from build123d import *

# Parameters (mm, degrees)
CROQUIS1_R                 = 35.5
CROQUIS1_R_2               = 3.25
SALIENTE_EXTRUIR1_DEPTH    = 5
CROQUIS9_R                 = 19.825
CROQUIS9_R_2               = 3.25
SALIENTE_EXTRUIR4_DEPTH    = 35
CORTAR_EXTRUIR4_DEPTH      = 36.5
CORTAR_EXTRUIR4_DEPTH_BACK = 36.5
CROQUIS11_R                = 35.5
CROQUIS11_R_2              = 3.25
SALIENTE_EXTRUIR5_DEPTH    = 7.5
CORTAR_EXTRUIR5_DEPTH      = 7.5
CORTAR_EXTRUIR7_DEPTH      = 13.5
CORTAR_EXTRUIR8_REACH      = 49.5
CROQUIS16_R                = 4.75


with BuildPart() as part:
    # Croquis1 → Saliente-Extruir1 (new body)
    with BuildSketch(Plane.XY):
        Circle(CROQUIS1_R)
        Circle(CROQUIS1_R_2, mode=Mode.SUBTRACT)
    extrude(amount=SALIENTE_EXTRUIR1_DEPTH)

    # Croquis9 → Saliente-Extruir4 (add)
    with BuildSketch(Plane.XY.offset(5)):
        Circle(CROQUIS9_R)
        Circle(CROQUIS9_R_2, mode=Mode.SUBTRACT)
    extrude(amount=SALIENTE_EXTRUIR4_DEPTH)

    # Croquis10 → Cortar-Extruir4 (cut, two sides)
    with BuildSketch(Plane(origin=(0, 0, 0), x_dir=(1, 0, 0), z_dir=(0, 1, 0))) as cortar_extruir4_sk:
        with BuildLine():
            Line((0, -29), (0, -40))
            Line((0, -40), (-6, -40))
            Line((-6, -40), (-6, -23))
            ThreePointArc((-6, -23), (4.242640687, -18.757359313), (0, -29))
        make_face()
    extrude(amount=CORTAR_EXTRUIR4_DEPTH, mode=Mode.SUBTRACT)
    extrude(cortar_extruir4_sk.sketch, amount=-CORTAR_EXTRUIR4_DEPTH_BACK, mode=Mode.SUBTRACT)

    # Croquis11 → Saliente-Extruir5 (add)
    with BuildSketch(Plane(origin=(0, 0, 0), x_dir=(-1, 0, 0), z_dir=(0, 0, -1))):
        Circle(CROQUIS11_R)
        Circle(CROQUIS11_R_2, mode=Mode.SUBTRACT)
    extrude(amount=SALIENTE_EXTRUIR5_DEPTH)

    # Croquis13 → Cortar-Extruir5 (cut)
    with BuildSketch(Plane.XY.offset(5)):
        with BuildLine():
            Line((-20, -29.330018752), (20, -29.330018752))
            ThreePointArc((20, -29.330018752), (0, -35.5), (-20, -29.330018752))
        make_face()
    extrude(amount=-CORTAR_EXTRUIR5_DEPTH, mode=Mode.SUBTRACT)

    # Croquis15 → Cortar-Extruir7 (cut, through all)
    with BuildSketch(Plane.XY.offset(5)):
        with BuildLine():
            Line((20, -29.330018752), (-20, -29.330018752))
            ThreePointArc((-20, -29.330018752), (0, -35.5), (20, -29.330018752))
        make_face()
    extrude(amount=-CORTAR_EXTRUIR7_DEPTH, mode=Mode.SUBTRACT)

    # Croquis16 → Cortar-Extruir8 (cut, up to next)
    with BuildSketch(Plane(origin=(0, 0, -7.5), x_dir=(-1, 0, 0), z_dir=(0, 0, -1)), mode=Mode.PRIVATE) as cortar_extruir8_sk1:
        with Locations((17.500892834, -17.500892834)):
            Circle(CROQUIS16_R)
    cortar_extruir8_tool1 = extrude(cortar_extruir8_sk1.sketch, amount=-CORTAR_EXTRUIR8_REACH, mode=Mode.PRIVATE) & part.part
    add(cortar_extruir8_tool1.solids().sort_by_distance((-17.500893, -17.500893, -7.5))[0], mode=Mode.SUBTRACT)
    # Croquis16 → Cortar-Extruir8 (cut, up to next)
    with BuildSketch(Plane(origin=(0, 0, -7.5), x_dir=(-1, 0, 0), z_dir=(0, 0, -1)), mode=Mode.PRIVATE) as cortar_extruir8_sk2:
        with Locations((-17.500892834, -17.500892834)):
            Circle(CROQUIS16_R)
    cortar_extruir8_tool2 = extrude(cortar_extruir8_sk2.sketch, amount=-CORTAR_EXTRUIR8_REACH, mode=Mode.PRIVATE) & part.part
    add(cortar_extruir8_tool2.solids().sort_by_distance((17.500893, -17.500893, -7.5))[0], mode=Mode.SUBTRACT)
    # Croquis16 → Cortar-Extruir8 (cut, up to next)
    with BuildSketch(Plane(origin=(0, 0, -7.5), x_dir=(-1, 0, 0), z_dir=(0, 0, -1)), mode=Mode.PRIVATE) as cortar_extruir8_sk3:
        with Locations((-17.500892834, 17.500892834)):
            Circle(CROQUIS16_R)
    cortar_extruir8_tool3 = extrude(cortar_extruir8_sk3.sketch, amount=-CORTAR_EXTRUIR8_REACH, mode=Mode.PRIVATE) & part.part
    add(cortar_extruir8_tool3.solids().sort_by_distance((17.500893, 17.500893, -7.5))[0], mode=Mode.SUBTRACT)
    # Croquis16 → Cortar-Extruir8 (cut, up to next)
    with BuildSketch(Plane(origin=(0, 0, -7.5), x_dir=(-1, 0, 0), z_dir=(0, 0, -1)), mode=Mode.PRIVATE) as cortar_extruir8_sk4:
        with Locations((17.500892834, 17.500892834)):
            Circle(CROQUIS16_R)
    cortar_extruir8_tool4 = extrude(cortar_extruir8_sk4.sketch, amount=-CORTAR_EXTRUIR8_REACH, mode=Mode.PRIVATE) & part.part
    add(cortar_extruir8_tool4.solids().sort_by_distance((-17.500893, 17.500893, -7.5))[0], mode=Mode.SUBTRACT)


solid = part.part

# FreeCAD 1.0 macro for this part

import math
import FreeCAD as App
import Part
import Sketcher

V = App.Vector
Q = App.Units.Quantity

doc = App.newDocument("Part")
body = doc.addObject("PartDesign::Body", "Body")

# Sketch on XY plane
sketch1 = body.newObject("Sketcher::SketchObject", "Sketch")
sketch1.AttachmentSupport = (doc.getObject("XY_Plane"), [""])
sketch1.MapMode = "FlatFace"
sketch1.addGeometry([
    Part.Circle(V(0, 0, 0), V(0, 0, 1), 35.5),
    Part.Circle(V(0, 0, 0), V(0, 0, 1), 3.2),
], False)
sketch1.addConstraint([
    Sketcher.Constraint("Coincident", 0, 3, -1, 1),
    Sketcher.Constraint("Coincident", 1, 3, -1, 1),
    Sketcher.Constraint("Diameter", 0, Q("71 mm")),
    Sketcher.Constraint("Diameter", 1, Q("6.5 mm")),
])
pad1 = body.newObject("PartDesign::Pad", "Pad")
pad1.Profile = sketch1
pad1.Length = 5

# Sketch on XY plane
sketch2 = body.newObject("Sketcher::SketchObject", "Sketch001")
sketch2.AttachmentSupport = (doc.getObject("XY_Plane"), [""])
sketch2.MapMode = "FlatFace"
sketch2.AttachmentOffset = App.Placement(V(0, 0, 5), App.Rotation())
sketch2.addGeometry([
    Part.Circle(V(0, 0, 0), V(0, 0, 1), 19.8),
    Part.Circle(V(0, 0, 0), V(0, 0, 1), 3.2),
], False)
sketch2.addConstraint([
    Sketcher.Constraint("Coincident", 0, 3, -1, 1),
    Sketcher.Constraint("Coincident", 1, 3, -1, 1),
    Sketcher.Constraint("Diameter", 1, Q("6.5 mm")),
    Sketcher.Constraint("Diameter", 0, Q("39.65 mm")),
])
pad2 = body.newObject("PartDesign::Pad", "Pad001")
pad2.Profile = sketch2
pad2.Length = 35

# Sketch on XZ plane
sketch3 = body.newObject("Sketcher::SketchObject", "Sketch002")
sketch3.AttachmentSupport = (doc.getObject("XZ_Plane"), [""])
sketch3.MapMode = "FlatFace"
sketch3.addGeometry([
    Part.LineSegment(V(0, 40, 0), V(0, 29, 0)),
    Part.ArcOfCircle(Part.Circle(V(0, 23, 0), V(0, 0, 1), 6), math.radians(180), math.radians(450)),
    Part.LineSegment(V(-6, 23, 0), V(-6, 40, 0)),
    Part.LineSegment(V(-6, 40, 0), V(0, 40, 0)),
], False)
sketch3.addConstraint([
    Sketcher.Constraint("Coincident", 0, 2, 1, 2),
    Sketcher.Constraint("Tangent", 1, 1, 2, 1),
    Sketcher.Constraint("Coincident", 2, 2, 3, 1),
    Sketcher.Constraint("Coincident", 3, 2, 0, 1),
    Sketcher.Constraint("Vertical", 0),
    Sketcher.Constraint("Vertical", 2),
    Sketcher.Constraint("Horizontal", 3),
    Sketcher.Constraint("PointOnObject", 1, 3, -2),
    Sketcher.Constraint("PointOnObject", 0, 2, -2),
    Sketcher.Constraint("Radius", 1, Q("6 mm")),
    Sketcher.Constraint("DistanceY", 0, 2, 0, 1, Q("11 mm")),
    Sketcher.Constraint("DistanceY", -1, 1, 1, 3, Q("23 mm")),
])
pocket1 = body.newObject("PartDesign::Pocket", "Pocket")
pocket1.Profile = sketch3
pocket1.Type = "ThroughAll"
pocket1.Midplane = True

# Sketch on XY plane
sketch4 = body.newObject("Sketcher::SketchObject", "Sketch003")
sketch4.AttachmentSupport = (doc.getObject("XY_Plane"), [""])
sketch4.MapMode = "FlatFace"
sketch4.addGeometry([
    Part.Circle(V(0, 0, 0), V(0, 0, 1), 35.5),
    Part.Circle(V(0, 0, 0), V(0, 0, 1), 3.2),
], False)
sketch4.addConstraint([
    Sketcher.Constraint("Coincident", 0, 3, -1, 1),
    Sketcher.Constraint("Coincident", 1, 3, -1, 1),
    Sketcher.Constraint("Diameter", 0, Q("71 mm")),
    Sketcher.Constraint("Diameter", 1, Q("6.5 mm")),
])
pad3 = body.newObject("PartDesign::Pad", "Pad002")
pad3.Profile = sketch4
pad3.Length = 7.5
pad3.Reversed = True

# Sketch on XY plane
sketch5 = body.newObject("Sketcher::SketchObject", "Sketch004")
sketch5.AttachmentSupport = (doc.getObject("XY_Plane"), [""])
sketch5.MapMode = "FlatFace"
sketch5.AttachmentOffset = App.Placement(V(0, 0, 5), App.Rotation())
sketch5.addGeometry([
    Part.LineSegment(V(20, -29, 0), V(-20, -29, 0)),
    Part.ArcOfCircle(Part.Circle(V(0, 0, 0), V(0, 0, 1), 35), math.radians(-124), math.radians(-56)),
], False)
sketch5.addConstraint([
    Sketcher.Constraint("Coincident", 0, 1, 1, 2),
    Sketcher.Constraint("Coincident", 1, 1, 0, 2),
    Sketcher.Constraint("Horizontal", 0),
    Sketcher.Constraint("Coincident", 1, 3, -1, 1),
    Sketcher.Constraint("Radius", 1, Q("35.5 mm")),
    Sketcher.Constraint("DistanceX", 0, 2, 0, 1, Q("40 mm")),
])
pocket2 = body.newObject("PartDesign::Pocket", "Pocket001")
pocket2.Profile = sketch5
pocket2.Length = 7.5

# Sketch on XY plane
sketch6 = body.newObject("Sketcher::SketchObject", "Sketch005")
sketch6.AttachmentSupport = (doc.getObject("XY_Plane"), [""])
sketch6.MapMode = "FlatFace"
sketch6.AttachmentOffset = App.Placement(V(0, 0, 5), App.Rotation())
sketch6.addGeometry([
    Part.LineSegment(V(20, -29, 0), V(-20, -29, 0)),
    Part.ArcOfCircle(Part.Circle(V(0, 0, 0), V(0, 0, 1), 35), math.radians(-124), math.radians(-56)),
], False)
sketch6.addConstraint([
    Sketcher.Constraint("Coincident", 0, 1, 1, 2),
    Sketcher.Constraint("Coincident", 1, 1, 0, 2),
    Sketcher.Constraint("Horizontal", 0),
    Sketcher.Constraint("Coincident", 1, 3, -1, 1),
    Sketcher.Constraint("Radius", 1, Q("35.5 mm")),
    Sketcher.Constraint("DistanceX", 0, 2, 0, 1, Q("40 mm")),
])
pocket3 = body.newObject("PartDesign::Pocket", "Pocket002")
pocket3.Profile = sketch6
pocket3.Type = "ThroughAll"

# Sketch on XY plane
sketch7 = body.newObject("Sketcher::SketchObject", "Sketch006")
sketch7.AttachmentSupport = (doc.getObject("XY_Plane"), [""])
sketch7.MapMode = "FlatFace"
sketch7.AttachmentOffset = App.Placement(V(0, 0, -7.5), App.Rotation())
sketch7.addGeometry(Part.Circle(V(-17.5, -17.5, 0), V(0, 0, 1), 4.8), False)
sketch7.addConstraint([
    Sketcher.Constraint("Diameter", 0, Q("9.5 mm")),
    Sketcher.Constraint("DistanceX", 0, 3, -1, 1, Q("17.500893 mm")),
    Sketcher.Constraint("DistanceY", 0, 3, -1, 1, Q("17.500893 mm")),
])
pocket4 = body.newObject("PartDesign::Pocket", "Pocket003")
pocket4.Profile = sketch7
pocket4.Type = "UpToFirst"
pocket4.Reversed = True

# Sketch on XY plane
sketch8 = body.newObject("Sketcher::SketchObject", "Sketch007")
sketch8.AttachmentSupport = (doc.getObject("XY_Plane"), [""])
sketch8.MapMode = "FlatFace"
sketch8.AttachmentOffset = App.Placement(V(0, 0, -7.5), App.Rotation())
sketch8.addGeometry(Part.Circle(V(17.5, -17.5, 0), V(0, 0, 1), 4.8), False)
sketch8.addConstraint([
    Sketcher.Constraint("Diameter", 0, Q("9.5 mm")),
    Sketcher.Constraint("DistanceX", -1, 1, 0, 3, Q("17.500893 mm")),
    Sketcher.Constraint("DistanceY", 0, 3, -1, 1, Q("17.500893 mm")),
])
pocket5 = body.newObject("PartDesign::Pocket", "Pocket004")
pocket5.Profile = sketch8
pocket5.Type = "UpToFirst"
pocket5.Reversed = True

# Sketch on XY plane
sketch9 = body.newObject("Sketcher::SketchObject", "Sketch008")
sketch9.AttachmentSupport = (doc.getObject("XY_Plane"), [""])
sketch9.MapMode = "FlatFace"
sketch9.AttachmentOffset = App.Placement(V(0, 0, -7.5), App.Rotation())
sketch9.addGeometry(Part.Circle(V(17.5, 17.5, 0), V(0, 0, 1), 4.8), False)
sketch9.addConstraint([
    Sketcher.Constraint("Diameter", 0, Q("9.5 mm")),
    Sketcher.Constraint("DistanceX", -1, 1, 0, 3, Q("17.500893 mm")),
    Sketcher.Constraint("DistanceY", -1, 1, 0, 3, Q("17.500893 mm")),
])
pocket6 = body.newObject("PartDesign::Pocket", "Pocket005")
pocket6.Profile = sketch9
pocket6.Type = "UpToFirst"
pocket6.Reversed = True

# Sketch on XY plane
sketch10 = body.newObject("Sketcher::SketchObject", "Sketch009")
sketch10.AttachmentSupport = (doc.getObject("XY_Plane"), [""])
sketch10.MapMode = "FlatFace"
sketch10.AttachmentOffset = App.Placement(V(0, 0, -7.5), App.Rotation())
sketch10.addGeometry(Part.Circle(V(-17.5, 17.5, 0), V(0, 0, 1), 4.8), False)
sketch10.addConstraint([
    Sketcher.Constraint("Diameter", 0, Q("9.5 mm")),
    Sketcher.Constraint("DistanceX", 0, 3, -1, 1, Q("17.500893 mm")),
    Sketcher.Constraint("DistanceY", -1, 1, 0, 3, Q("17.500893 mm")),
])
pocket7 = body.newObject("PartDesign::Pocket", "Pocket006")
pocket7.Profile = sketch10
pocket7.Type = "UpToFirst"
pocket7.Reversed = True

doc.recompute()
